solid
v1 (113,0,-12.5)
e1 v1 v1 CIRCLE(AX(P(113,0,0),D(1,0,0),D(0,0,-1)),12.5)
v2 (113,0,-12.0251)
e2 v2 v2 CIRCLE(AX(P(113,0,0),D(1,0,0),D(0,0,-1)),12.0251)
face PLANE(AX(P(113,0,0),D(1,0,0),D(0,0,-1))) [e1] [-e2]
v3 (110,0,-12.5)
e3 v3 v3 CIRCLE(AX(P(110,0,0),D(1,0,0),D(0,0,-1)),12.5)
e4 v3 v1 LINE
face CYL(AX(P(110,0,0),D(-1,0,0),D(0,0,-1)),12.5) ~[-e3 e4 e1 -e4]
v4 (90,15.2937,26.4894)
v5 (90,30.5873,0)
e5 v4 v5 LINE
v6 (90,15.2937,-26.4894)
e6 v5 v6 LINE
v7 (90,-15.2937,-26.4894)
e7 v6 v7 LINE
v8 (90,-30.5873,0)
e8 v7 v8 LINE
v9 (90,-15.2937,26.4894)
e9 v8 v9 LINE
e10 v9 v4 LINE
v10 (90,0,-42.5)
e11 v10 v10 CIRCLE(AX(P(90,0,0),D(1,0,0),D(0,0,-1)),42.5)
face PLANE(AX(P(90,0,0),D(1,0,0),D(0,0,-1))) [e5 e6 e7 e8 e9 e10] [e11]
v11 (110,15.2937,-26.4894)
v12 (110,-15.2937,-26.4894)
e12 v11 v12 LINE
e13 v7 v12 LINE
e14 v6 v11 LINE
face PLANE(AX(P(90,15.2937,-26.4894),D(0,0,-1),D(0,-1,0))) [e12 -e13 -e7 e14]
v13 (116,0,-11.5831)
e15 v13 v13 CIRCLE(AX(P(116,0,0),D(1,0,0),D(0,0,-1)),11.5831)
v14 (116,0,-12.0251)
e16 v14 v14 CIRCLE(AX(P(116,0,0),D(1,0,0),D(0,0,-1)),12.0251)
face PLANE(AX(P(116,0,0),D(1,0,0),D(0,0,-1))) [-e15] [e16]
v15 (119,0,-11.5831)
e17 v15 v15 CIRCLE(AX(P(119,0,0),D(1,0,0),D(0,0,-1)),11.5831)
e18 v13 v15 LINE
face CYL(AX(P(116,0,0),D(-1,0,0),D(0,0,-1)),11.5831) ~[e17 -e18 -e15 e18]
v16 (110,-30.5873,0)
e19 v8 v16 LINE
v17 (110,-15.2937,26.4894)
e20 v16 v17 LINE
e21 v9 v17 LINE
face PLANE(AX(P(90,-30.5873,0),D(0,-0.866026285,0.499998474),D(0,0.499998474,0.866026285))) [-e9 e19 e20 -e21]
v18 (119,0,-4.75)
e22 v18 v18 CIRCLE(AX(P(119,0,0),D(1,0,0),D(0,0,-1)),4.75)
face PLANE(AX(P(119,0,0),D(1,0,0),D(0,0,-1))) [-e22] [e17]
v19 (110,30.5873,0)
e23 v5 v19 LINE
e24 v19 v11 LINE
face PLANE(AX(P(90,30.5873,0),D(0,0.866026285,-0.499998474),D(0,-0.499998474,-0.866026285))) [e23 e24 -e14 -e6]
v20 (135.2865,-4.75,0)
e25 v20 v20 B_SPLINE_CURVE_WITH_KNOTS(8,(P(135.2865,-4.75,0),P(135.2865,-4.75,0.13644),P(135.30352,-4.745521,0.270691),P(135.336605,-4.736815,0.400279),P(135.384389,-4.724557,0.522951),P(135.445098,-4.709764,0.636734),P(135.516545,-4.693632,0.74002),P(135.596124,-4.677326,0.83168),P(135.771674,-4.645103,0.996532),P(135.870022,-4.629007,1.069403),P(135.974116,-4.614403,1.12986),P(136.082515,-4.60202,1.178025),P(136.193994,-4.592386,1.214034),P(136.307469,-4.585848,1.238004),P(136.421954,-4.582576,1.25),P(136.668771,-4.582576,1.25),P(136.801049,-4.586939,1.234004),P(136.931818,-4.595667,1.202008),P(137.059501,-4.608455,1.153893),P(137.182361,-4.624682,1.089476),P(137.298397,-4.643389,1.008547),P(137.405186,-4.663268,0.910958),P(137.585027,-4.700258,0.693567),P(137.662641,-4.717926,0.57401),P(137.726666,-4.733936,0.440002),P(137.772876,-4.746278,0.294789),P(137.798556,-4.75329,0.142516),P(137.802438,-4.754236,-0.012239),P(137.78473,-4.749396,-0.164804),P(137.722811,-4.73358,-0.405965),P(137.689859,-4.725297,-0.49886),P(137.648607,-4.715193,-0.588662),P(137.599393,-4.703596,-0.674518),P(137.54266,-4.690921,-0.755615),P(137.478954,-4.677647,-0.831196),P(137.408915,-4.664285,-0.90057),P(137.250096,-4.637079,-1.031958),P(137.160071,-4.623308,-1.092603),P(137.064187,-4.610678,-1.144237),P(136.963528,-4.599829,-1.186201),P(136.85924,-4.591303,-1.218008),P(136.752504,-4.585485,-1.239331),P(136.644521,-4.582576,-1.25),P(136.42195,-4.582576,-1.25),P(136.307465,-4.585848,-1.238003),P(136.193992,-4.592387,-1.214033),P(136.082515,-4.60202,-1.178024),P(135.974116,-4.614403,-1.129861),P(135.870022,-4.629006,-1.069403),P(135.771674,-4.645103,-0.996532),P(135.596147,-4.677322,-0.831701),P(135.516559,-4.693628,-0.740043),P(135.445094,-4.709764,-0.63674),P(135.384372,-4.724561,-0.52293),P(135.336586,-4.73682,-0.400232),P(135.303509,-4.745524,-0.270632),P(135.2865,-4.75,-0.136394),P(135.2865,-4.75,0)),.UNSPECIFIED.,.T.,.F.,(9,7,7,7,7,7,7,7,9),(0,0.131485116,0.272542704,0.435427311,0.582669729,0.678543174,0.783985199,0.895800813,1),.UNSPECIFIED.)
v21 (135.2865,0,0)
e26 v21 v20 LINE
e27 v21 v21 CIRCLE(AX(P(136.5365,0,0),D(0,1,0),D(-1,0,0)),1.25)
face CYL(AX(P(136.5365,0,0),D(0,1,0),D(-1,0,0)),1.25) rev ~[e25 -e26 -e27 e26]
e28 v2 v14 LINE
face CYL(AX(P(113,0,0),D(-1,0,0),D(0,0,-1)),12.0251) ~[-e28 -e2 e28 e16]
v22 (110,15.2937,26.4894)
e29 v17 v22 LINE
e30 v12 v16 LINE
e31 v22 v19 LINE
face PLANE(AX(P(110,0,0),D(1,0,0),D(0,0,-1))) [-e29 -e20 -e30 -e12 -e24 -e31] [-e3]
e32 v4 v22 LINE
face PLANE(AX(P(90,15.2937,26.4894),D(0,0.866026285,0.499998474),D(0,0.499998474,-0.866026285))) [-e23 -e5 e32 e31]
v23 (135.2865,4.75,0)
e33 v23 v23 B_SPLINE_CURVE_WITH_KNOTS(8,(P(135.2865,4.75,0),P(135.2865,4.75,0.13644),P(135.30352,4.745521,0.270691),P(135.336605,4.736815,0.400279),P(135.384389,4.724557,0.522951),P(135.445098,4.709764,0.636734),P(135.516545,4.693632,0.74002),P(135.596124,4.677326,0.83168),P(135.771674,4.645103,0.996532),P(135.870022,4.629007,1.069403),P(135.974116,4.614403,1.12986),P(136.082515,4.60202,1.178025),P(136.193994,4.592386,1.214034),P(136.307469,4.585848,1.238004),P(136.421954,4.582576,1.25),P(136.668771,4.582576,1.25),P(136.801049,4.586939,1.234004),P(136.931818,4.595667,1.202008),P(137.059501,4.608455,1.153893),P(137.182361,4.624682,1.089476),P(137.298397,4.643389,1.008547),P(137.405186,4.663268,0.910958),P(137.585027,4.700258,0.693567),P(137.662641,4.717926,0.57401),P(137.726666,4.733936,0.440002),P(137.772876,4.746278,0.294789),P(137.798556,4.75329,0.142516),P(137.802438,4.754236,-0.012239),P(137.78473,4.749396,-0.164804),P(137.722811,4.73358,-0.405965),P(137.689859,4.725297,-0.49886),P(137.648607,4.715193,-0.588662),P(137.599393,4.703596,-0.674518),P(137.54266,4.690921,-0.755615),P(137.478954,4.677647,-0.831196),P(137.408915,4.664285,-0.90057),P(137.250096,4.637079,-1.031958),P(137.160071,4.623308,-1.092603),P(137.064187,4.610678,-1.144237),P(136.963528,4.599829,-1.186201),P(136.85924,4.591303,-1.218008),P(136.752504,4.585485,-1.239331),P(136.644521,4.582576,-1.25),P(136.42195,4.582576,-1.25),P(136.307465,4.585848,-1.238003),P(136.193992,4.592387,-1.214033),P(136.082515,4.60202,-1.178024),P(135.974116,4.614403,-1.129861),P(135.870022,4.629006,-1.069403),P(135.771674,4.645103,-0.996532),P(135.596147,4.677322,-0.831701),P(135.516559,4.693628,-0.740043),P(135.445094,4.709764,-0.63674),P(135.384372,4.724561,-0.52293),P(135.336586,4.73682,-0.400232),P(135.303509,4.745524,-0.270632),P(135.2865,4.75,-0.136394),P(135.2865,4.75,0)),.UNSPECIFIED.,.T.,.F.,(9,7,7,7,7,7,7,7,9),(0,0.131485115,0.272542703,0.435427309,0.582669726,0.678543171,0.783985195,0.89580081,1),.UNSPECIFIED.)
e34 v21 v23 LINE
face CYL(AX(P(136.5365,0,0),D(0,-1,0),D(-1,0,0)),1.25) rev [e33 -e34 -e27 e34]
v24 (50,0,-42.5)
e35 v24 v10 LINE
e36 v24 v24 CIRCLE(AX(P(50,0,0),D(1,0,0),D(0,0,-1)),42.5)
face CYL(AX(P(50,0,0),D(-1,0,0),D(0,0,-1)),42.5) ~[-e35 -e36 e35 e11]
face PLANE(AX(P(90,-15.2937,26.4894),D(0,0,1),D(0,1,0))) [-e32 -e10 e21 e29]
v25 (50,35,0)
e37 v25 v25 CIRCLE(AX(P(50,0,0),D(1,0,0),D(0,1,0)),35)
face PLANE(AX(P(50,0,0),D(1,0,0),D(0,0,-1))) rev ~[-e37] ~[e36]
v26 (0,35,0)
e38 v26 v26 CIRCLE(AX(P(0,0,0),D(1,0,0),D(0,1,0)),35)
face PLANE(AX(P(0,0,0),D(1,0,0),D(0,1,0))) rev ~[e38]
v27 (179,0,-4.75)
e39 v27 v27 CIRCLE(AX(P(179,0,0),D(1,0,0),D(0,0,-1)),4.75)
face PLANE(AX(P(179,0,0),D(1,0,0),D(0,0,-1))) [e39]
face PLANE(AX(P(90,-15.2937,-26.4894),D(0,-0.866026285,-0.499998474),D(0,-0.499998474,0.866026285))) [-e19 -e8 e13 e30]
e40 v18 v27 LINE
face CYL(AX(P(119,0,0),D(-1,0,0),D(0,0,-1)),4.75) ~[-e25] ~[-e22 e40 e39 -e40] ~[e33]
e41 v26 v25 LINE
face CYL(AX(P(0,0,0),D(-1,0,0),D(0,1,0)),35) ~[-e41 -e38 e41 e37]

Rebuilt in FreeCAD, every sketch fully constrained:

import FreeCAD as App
import Part
import Sketcher
Q = App.Units.Quantity

doc = App.newDocument("Part")
body = doc.addObject("PartDesign::Body", "Body")

# Sketch on YZ plane
sketch1 = body.newObject("Sketcher::SketchObject", "Sketch")
sketch1.AttachmentSupport = (doc.getObject("YZ_Plane"), [""])
sketch1.MapMode = "FlatFace"
sketch1.addGeometry(Part.Circle(App.Vector(0, 0, 0), App.Vector(0, 0, 1), 35), False)
sketch1.addConstraint([
    Sketcher.Constraint("Coincident", 0, 3, -1, 1),
    Sketcher.Constraint("Diameter", 0, Q("70 mm")),
])
pad1 = body.newObject("PartDesign::Pad", "Pad")
pad1.Profile = sketch1
pad1.Length = 50

# Sketch on YZ plane
sketch2 = body.newObject("Sketcher::SketchObject", "Sketch001")
sketch2.AttachmentSupport = (doc.getObject("YZ_Plane"), [""])
sketch2.MapMode = "FlatFace"
sketch2.AttachmentOffset = App.Placement(App.Vector(0, 0, 50), App.Rotation())
sketch2.addGeometry(Part.Circle(App.Vector(0, 0, 0), App.Vector(0, 0, 1), 42), False)
sketch2.addConstraint([
    Sketcher.Constraint("Coincident", 0, 3, -1, 1),
    Sketcher.Constraint("Diameter", 0, Q("85 mm")),
])
pad2 = body.newObject("PartDesign::Pad", "Pad001")
pad2.Profile = sketch2
pad2.Length = 40

# Sketch on YZ plane
sketch3 = body.newObject("Sketcher::SketchObject", "Sketch002")
sketch3.AttachmentSupport = (doc.getObject("YZ_Plane"), [""])
sketch3.MapMode = "FlatFace"
sketch3.AttachmentOffset = App.Placement(App.Vector(0, 0, 90), App.Rotation())
sketch3.addGeometry([
    Part.LineSegment(App.Vector(15, -26, 0), App.Vector(31, 0, 0)),  # 0
    Part.LineSegment(App.Vector(31, 0, 0), App.Vector(15, 26, 0)),  # 1
    Part.LineSegment(App.Vector(15, 26, 0), App.Vector(-15, 26, 0)),  # 2
    Part.LineSegment(App.Vector(-15, 26, 0), App.Vector(-31, 0, 0)),  # 3
    Part.LineSegment(App.Vector(-31, 0, 0), App.Vector(-15, -26, 0)),  # 4
    Part.LineSegment(App.Vector(-15, -26, 0), App.Vector(15, -26, 0)),  # 5
], False)
sketch3.addConstraint([
    Sketcher.Constraint("Coincident", 0, 2, 1, 1),
    Sketcher.Constraint("Coincident", 1, 2, 2, 1),
    Sketcher.Constraint("Coincident", 2, 2, 3, 1),
    Sketcher.Constraint("Coincident", 3, 2, 4, 1),
    Sketcher.Constraint("Coincident", 4, 2, 5, 1),
    Sketcher.Constraint("Coincident", 5, 2, 0, 1),
    Sketcher.Constraint("Horizontal", 2),
    Sketcher.Constraint("Horizontal", 5),
    Sketcher.Constraint("Symmetric", 0, 2, 3, 2, -1, 1),
    Sketcher.Constraint("Symmetric", 1, 2, 4, 2, -1, 1),
    Sketcher.Constraint("PointOnObject", 0, 2, -1),
    Sketcher.Constraint("Parallel", 0, 3),
    Sketcher.Constraint("Vertical", 2, 2, 4, 2),
    Sketcher.Constraint("Angle", 0, Q("60 deg")),
    Sketcher.Constraint("DistanceX", 2, 2, 2, 1, Q("30.5874 mm")),
    Sketcher.Constraint("DistanceX", 2, 2, 0, 2, Q("45.881 mm")),
])
pad3 = body.newObject("PartDesign::Pad", "Pad002")
pad3.Profile = sketch3
pad3.Length = 20

# Sketch on YZ plane
sketch4 = body.newObject("Sketcher::SketchObject", "Sketch003")
sketch4.AttachmentSupport = (doc.getObject("YZ_Plane"), [""])
sketch4.MapMode = "FlatFace"
sketch4.AttachmentOffset = App.Placement(App.Vector(0, 0, 110), App.Rotation())
sketch4.addGeometry(Part.Circle(App.Vector(0, 0, 0), App.Vector(0, 0, 1), 12), False)
sketch4.addConstraint([
    Sketcher.Constraint("Coincident", 0, 3, -1, 1),
    Sketcher.Constraint("Diameter", 0, Q("25 mm")),
])
pad4 = body.newObject("PartDesign::Pad", "Pad003")
pad4.Profile = sketch4
pad4.Length = 3

# Sketch on YZ plane
sketch5 = body.newObject("Sketcher::SketchObject", "Sketch004")
sketch5.AttachmentSupport = (doc.getObject("YZ_Plane"), [""])
sketch5.MapMode = "FlatFace"
sketch5.AttachmentOffset = App.Placement(App.Vector(0, 0, 113), App.Rotation())
sketch5.addGeometry(Part.Circle(App.Vector(0, 0, 0), App.Vector(0, 0, 1), 12), False)
sketch5.addConstraint([
    Sketcher.Constraint("Coincident", 0, 3, -1, 1),
    Sketcher.Constraint("Diameter", 0, Q("24.0502 mm")),
])
pad5 = body.newObject("PartDesign::Pad", "Pad004")
pad5.Profile = sketch5
pad5.Length = 3

# Sketch on YZ plane
sketch6 = body.newObject("Sketcher::SketchObject", "Sketch005")
sketch6.AttachmentSupport = (doc.getObject("YZ_Plane"), [""])
sketch6.MapMode = "FlatFace"
sketch6.AttachmentOffset = App.Placement(App.Vector(0, 0, 116), App.Rotation())
sketch6.addGeometry(Part.Circle(App.Vector(0, 0, 0), App.Vector(0, 0, 1), 12), False)
sketch6.addConstraint([
    Sketcher.Constraint("Coincident", 0, 3, -1, 1),
    Sketcher.Constraint("Diameter", 0, Q("23.1662 mm")),
])
pad6 = body.newObject("PartDesign::Pad", "Pad005")
pad6.Profile = sketch6
pad6.Length = 3

# Sketch on YZ plane
sketch7 = body.newObject("Sketcher::SketchObject", "Sketch006")
sketch7.AttachmentSupport = (doc.getObject("YZ_Plane"), [""])
sketch7.MapMode = "FlatFace"
sketch7.AttachmentOffset = App.Placement(App.Vector(0, 0, 119), App.Rotation())
sketch7.addGeometry(Part.Circle(App.Vector(0, 0, 0), App.Vector(0, 0, 1), 4.8), False)
sketch7.addConstraint([
    Sketcher.Constraint("Coincident", 0, 3, -1, 1),
    Sketcher.Constraint("Diameter", 0, Q("9.5 mm")),
])
pad7 = body.newObject("PartDesign::Pad", "Pad006")
pad7.Profile = sketch7
pad7.Length = 60

# Sketch on XZ plane
sketch8 = body.newObject("Sketcher::SketchObject", "Sketch007")
sketch8.AttachmentSupport = (doc.getObject("XZ_Plane"), [""])
sketch8.MapMode = "FlatFace"
sketch8.addGeometry(Part.Circle(App.Vector(136.5, 0, 0), App.Vector(0, 0, 1), 1.2), False)
sketch8.addConstraint([
    Sketcher.Constraint("PointOnObject", 0, 3, -1),
    Sketcher.Constraint("Diameter", 0, Q("2.5 mm")),
    Sketcher.Constraint("DistanceX", -1, 1, 0, 3, Q("136.5365 mm")),
])
pocket1 = body.newObject("PartDesign::Pocket", "Pocket")
pocket1.Profile = sketch8
pocket1.Length = 20
pocket1.Midplane = True

doc.recompute()
